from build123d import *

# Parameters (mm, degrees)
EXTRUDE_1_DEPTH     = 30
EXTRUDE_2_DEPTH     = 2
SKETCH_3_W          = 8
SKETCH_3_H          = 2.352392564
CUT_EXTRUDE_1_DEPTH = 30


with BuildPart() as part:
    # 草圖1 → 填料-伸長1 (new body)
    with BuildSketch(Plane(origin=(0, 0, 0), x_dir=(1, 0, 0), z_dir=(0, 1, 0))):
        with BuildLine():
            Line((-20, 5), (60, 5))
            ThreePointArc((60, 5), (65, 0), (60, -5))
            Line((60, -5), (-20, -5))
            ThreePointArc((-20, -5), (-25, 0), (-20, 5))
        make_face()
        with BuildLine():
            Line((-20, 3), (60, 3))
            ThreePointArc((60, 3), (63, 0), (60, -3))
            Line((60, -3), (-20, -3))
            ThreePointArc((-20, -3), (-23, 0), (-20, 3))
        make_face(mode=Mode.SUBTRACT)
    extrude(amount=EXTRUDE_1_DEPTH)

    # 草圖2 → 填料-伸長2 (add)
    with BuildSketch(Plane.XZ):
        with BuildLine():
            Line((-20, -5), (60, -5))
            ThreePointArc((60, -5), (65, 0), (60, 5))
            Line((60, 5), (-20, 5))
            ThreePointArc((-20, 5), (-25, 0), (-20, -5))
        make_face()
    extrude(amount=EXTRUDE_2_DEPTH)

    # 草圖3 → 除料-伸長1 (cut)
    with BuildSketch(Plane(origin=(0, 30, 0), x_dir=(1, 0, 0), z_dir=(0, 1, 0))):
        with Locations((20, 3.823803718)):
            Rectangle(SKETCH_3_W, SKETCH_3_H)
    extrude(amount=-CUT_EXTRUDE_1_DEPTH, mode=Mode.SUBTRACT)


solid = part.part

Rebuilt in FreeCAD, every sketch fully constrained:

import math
import FreeCAD as App
import Part
import Sketcher

V = App.Vector

doc = App.newDocument("Part")
params = doc.addObject("Spreadsheet::Sheet", "Params")
for row, (alias, value) in enumerate([
    ("sketch1_radius", "5 mm"),
    ("sketch1_radius2", "3 mm"),
    ("sketch1_width", "80 mm"),
    ("pad1_length", "30 mm"),
    ("sketch2_radius", "5 mm"),
    ("sketch2_width", "80 mm"),
    ("pad2_length", "2 mm"),
    ("sketch3_width", "8 mm"),
    ("pocket1_length", "30 mm"),
], start=1):
    params.set(f"A{row}", alias)
    params.set(f"B{row}", "=" + value)
    params.setAlias(f"B{row}", alias)

body = doc.addObject("PartDesign::Body", "Body")

sketch1 = body.newObject("Sketcher::SketchObject", "Sketch")
sketch1.AttachmentSupport = (doc.getObject("XZ_Plane"), [""])
sketch1.MapMode = "FlatFace"
sketch1.addGeometry(Part.LineSegment(V(60, -5, 0), V(-20, -5, 0)), False)
sketch1.addGeometry(Part.ArcOfCircle(Part.Circle(V(-20, 0, 0), V(0, 0, 1), 5), math.radians(90), math.radians(270)), False)
sketch1.addGeometry(Part.LineSegment(V(-20, 5, 0), V(60, 5, 0)), False)
sketch1.addGeometry(Part.ArcOfCircle(Part.Circle(V(60, 0, 0), V(0, 0, 1), 5), math.radians(-90), math.radians(90)), False)
sketch1.addGeometry(Part.LineSegment(V(-20, -3, 0), V(60, -3, 0)), False)
sketch1.addGeometry(Part.ArcOfCircle(Part.Circle(V(60, 0, 0), V(0, 0, 1), 3), math.radians(-90), math.radians(90)), False)
sketch1.addGeometry(Part.LineSegment(V(60, 3, 0), V(-20, 3, 0)), False)
sketch1.addGeometry(Part.ArcOfCircle(Part.Circle(V(-20, 0, 0), V(0, 0, 1), 3), math.radians(90), math.radians(270)), False)
sketch1.addConstraint(Sketcher.Constraint("Tangent", 0, 2, 1, 2))
sketch1.addConstraint(Sketcher.Constraint("Tangent", 1, 1, 2, 1))
sketch1.addConstraint(Sketcher.Constraint("Tangent", 2, 2, 3, 2))
sketch1.addConstraint(Sketcher.Constraint("Tangent", 3, 1, 0, 1))
sketch1.addConstraint(Sketcher.Constraint("Tangent", 4, 2, 5, 1))
sketch1.addConstraint(Sketcher.Constraint("Tangent", 5, 2, 6, 1))
sketch1.addConstraint(Sketcher.Constraint("Tangent", 6, 2, 7, 1))
sketch1.addConstraint(Sketcher.Constraint("Tangent", 7, 2, 4, 1))
sketch1.addConstraint(Sketcher.Constraint("Horizontal", 0))
sketch1.addConstraint(Sketcher.Constraint("Horizontal", 2))
sketch1.addConstraint(Sketcher.Constraint("Horizontal", 4))
sketch1.addConstraint(Sketcher.Constraint("Horizontal", 6))
sketch1.addConstraint(Sketcher.Constraint("Coincident", 5, 3, 3, 3))
sketch1.addConstraint(Sketcher.Constraint("PointOnObject", 1, 3, -1))
sketch1.addConstraint(Sketcher.Constraint("Vertical", 7, 3, 0, 2))
sketch1.addConstraint(Sketcher.Constraint("Radius", 1, 5.0))
sketch1.addConstraint(Sketcher.Constraint("Radius", 5, 3.0))
sketch1.addConstraint(Sketcher.Constraint("DistanceX", 0, 2, 0, 1, 80.0))
sketch1.addConstraint(Sketcher.Constraint("DistanceX", 1, 3, -1, 1, 20.0))
sketch1.setExpression("Constraints[15]", "Params.sketch1_radius")
sketch1.setExpression("Constraints[16]", "Params.sketch1_radius2")
sketch1.setExpression("Constraints[17]", "Params.sketch1_width")
pad1 = body.newObject("PartDesign::Pad", "Pad")
pad1.Profile = sketch1
pad1.setExpression("Length", "Params.pad1_length")
pad1.Reversed = True

sketch2 = body.newObject("Sketcher::SketchObject", "Sketch001")
sketch2.AttachmentSupport = (doc.getObject("XZ_Plane"), [""])
sketch2.MapMode = "FlatFace"
sketch2.addGeometry(Part.LineSegment(V(-20, -5, 0), V(60, -5, 0)), False)
sketch2.addGeometry(Part.ArcOfCircle(Part.Circle(V(60, 0, 0), V(0, 0, 1), 5), math.radians(-90), math.radians(90)), False)
sketch2.addGeometry(Part.LineSegment(V(60, 5, 0), V(-20, 5, 0)), False)
sketch2.addGeometry(Part.ArcOfCircle(Part.Circle(V(-20, 0, 0), V(0, 0, 1), 5), math.radians(90), math.radians(270)), False)
sketch2.addConstraint(Sketcher.Constraint("Tangent", 0, 2, 1, 1))
sketch2.addConstraint(Sketcher.Constraint("Tangent", 1, 2, 2, 1))
sketch2.addConstraint(Sketcher.Constraint("Tangent", 2, 2, 3, 1))
sketch2.addConstraint(Sketcher.Constraint("Tangent", 3, 2, 0, 1))
sketch2.addConstraint(Sketcher.Constraint("Horizontal", 0))
sketch2.addConstraint(Sketcher.Constraint("Horizontal", 2))
sketch2.addConstraint(Sketcher.Constraint("PointOnObject", 1, 3, -1))
sketch2.addConstraint(Sketcher.Constraint("Radius", 1, 5.0))
sketch2.addConstraint(Sketcher.Constraint("DistanceX", 0, 1, 0, 2, 80.0))
sketch2.addConstraint(Sketcher.Constraint("DistanceX", -1, 1, 1, 3, 60.0))
sketch2.setExpression("Constraints[7]", "Params.sketch2_radius")
sketch2.setExpression("Constraints[8]", "Params.sketch2_width")
pad2 = body.newObject("PartDesign::Pad", "Pad001")
pad2.Profile = sketch2
pad2.setExpression("Length", "Params.pad2_length")

sketch3 = body.newObject("Sketcher::SketchObject", "Sketch002")
sketch3.AttachmentSupport = (doc.getObject("XZ_Plane"), [""])
sketch3.MapMode = "FlatFace"
sketch3.AttachmentOffset = App.Placement(V(0, 0, -30), App.Rotation())
sketch3.addGeometry(Part.LineSegment(V(16, -5, 0), V(16, -2.6, 0)), False)
sketch3.addGeometry(Part.LineSegment(V(16, -2.6, 0), V(24, -2.6, 0)), False)
sketch3.addGeometry(Part.LineSegment(V(24, -2.6, 0), V(24, -5, 0)), False)
sketch3.addGeometry(Part.LineSegment(V(24, -5, 0), V(16, -5, 0)), False)
sketch3.addConstraint(Sketcher.Constraint("Coincident", 0, 2, 1, 1))
sketch3.addConstraint(Sketcher.Constraint("Coincident", 1, 2, 2, 1))
sketch3.addConstraint(Sketcher.Constraint("Coincident", 2, 2, 3, 1))
sketch3.addConstraint(Sketcher.Constraint("Coincident", 3, 2, 0, 1))
sketch3.addConstraint(Sketcher.Constraint("Vertical", 0))
sketch3.addConstraint(Sketcher.Constraint("Horizontal", 1))
sketch3.addConstraint(Sketcher.Constraint("Vertical", 2))
sketch3.addConstraint(Sketcher.Constraint("Horizontal", 3))
sketch3.addConstraint(Sketcher.Constraint("DistanceX", 1, 1, 1, 2, 8.0))
sketch3.addConstraint(Sketcher.Constraint("DistanceX", -1, 1, 0, 2, 16.0))
sketch3.addConstraint(Sketcher.Constraint("DistanceY", 2, 2, -1, 1, 5.0))
sketch3.addConstraint(Sketcher.Constraint("DistanceY", 0, 1, 0, 2, 2.352393))
sketch3.setExpression("Constraints[8]", "Params.sketch3_width")
pocket1 = body.newObject("PartDesign::Pocket", "Pocket")
pocket1.Profile = sketch3
pocket1.setExpression("Length", "Params.pocket1_length")
pocket1.Reversed = True

doc.recompute()
